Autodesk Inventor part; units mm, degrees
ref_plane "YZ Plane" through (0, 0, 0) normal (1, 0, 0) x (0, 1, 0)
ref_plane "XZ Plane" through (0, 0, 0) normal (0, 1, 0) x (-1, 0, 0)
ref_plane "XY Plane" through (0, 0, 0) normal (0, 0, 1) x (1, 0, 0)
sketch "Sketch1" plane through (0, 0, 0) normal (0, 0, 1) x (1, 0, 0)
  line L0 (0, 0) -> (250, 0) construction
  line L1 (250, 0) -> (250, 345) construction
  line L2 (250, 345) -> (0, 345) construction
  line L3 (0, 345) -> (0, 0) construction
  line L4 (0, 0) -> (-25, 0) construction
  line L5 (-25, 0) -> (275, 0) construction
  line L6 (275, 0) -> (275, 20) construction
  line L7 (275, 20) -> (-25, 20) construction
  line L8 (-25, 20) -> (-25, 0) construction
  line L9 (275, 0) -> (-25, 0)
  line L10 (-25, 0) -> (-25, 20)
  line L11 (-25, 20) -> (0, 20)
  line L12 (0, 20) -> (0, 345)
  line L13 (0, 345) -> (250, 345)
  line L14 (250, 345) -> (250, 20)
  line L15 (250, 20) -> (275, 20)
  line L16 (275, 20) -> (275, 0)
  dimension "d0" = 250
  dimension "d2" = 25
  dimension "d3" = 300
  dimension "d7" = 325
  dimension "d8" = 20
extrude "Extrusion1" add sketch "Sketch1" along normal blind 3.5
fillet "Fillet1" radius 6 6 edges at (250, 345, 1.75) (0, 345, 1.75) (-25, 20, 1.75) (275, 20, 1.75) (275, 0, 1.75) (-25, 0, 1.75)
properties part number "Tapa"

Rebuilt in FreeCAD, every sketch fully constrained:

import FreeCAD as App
import Part
import Sketcher
Q = App.Units.Quantity


def edges_at(feature, points):
    """Names of the edges that pass closest to the given points."""
    edges = feature.Shape.Edges
    near = lambda p: min(range(len(edges)), key=lambda i: edges[i].distToShape(Part.Vertex(*p))[0])
    return sorted({f"Edge{near(p) + 1}" for p in points})


def add_polygon(sketch, points):
    """Adds a closed chain of lines whose ends are joined by coincident constraints."""
    first, n = sketch.GeometryCount, len(points)
    for a, b in zip(points, points[1:] + points[:1]):
        sketch.addGeometry(Part.LineSegment(App.Vector(*a, 0), App.Vector(*b, 0)), False)
    for i in range(n):
        sketch.addConstraint(Sketcher.Constraint("Coincident", first + i, 2, first + (i + 1) % n, 1))

doc = App.newDocument("Part")
body = doc.addObject("PartDesign::Body", "Body")

# Sketch on XY plane
sketch1 = body.newObject("Sketcher::SketchObject", "Sketch")
sketch1.AttachmentSupport = (doc.getObject("XY_Plane"), [""])
sketch1.MapMode = "FlatFace"
add_polygon(sketch1, [(-25, 0), (275, 0), (275, 20), (250, 20), (250, 345), (0, 345), (0, 20), (-25, 20)])  # lines 0-7
sketch1.addConstraint([
    Sketcher.Constraint("Horizontal", 0),
    Sketcher.Constraint("Vertical", 1),
    Sketcher.Constraint("Horizontal", 2),
    Sketcher.Constraint("Vertical", 3),
    Sketcher.Constraint("Horizontal", 4),
    Sketcher.Constraint("Vertical", 5),
    Sketcher.Constraint("Horizontal", 6),
    Sketcher.Constraint("Vertical", 7),
    Sketcher.Constraint("PointOnObject", 0, 2, -1),
    Sketcher.Constraint("PointOnObject", 4, 2, -2),
    Sketcher.Constraint("Horizontal", 2, 2, 5, 2),
    Sketcher.Constraint("Equal", 2, 6),
    Sketcher.Constraint("DistanceX", 0, 1, 0, 2, Q("300 mm")),
    Sketcher.Constraint("DistanceX", 2, 2, 2, 1, Q("25 mm")),
    Sketcher.Constraint("DistanceY", 1, 1, 1, 2, Q("20 mm")),
    Sketcher.Constraint("DistanceY", 3, 1, 3, 2, Q("325 mm")),
])
pad1 = body.newObject("PartDesign::Pad", "Pad")
pad1.Profile = sketch1
pad1.Length = 3.5
doc.recompute()

fillet = body.newObject("PartDesign::Fillet", "Fillet")
fillet.Base = (pad1, edges_at(pad1, [
    (250, 345, 1.75),
    (0, 345, 1.75),
    (-25, 20, 1.75),
    (275, 20, 1.75),
    (275, 0, 1.75),
    (-25, 0, 1.75),
]))
fillet.Radius = 6

doc.recompute()
